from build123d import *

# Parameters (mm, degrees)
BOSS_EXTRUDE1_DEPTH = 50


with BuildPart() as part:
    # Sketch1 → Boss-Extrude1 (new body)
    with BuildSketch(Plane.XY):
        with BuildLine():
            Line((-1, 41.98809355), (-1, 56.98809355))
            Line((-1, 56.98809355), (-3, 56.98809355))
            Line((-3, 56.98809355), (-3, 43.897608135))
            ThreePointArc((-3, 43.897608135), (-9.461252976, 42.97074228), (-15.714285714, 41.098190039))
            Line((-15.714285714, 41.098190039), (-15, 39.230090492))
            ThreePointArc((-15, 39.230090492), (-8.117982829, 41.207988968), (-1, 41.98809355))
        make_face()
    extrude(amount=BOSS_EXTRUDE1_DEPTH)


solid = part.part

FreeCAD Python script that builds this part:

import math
import FreeCAD as App
import Part
import Sketcher

V = App.Vector
Q = App.Units.Quantity

doc = App.newDocument("Part")
params = doc.addObject("Spreadsheet::Sheet", "Params")
for row, (alias, value) in enumerate([
    ("sketch1_radius", "44 mm"),
    ("sketch1_radius2", "42 mm"),
    ("sketch1_width", "2 mm"),
    ("sketch1_height", "15 mm"),
    ("pad1_length", "50 mm"),
], start=1):
    params.set(f"A{row}", alias)
    params.set(f"B{row}", "=" + value)
    params.setAlias(f"B{row}", alias)

body = doc.addObject("PartDesign::Body", "Body")

sketch1 = body.newObject("Sketcher::SketchObject", "Sketch")
sketch1.AttachmentSupport = (doc.getObject("XY_Plane"), [""])
sketch1.MapMode = "FlatFace"
sketch1.addGeometry([
    Part.LineSegment(V(-1, 41.988094, 0), V(-1, 56.988094, 0)),
    Part.LineSegment(V(-1, 56.988094, 0), V(-3, 56.988094, 0)),
    Part.LineSegment(V(-3, 56.988094, 0), V(-3, 43.897608, 0)),
    Part.ArcOfCircle(Part.Circle(V(0, 0, 0), V(0, 0, 1), 44), math.radians(93.909564), math.radians(110.924832)),
    Part.LineSegment(V(-15.714286, 41.09819, 0), V(-15, 39.23009, 0)),
    Part.ArcOfCircle(Part.Circle(V(0, 0, 0), V(0, 0, 1), 42), math.radians(91.364314), math.radians(110.924832)),
], False)
sketch1.addConstraint([
    Sketcher.Constraint("Coincident", 0, 2, 1, 1),
    Sketcher.Constraint("Coincident", 1, 2, 2, 1),
    Sketcher.Constraint("Coincident", 2, 2, 3, 1),
    Sketcher.Constraint("Coincident", 3, 2, 4, 1),
    Sketcher.Constraint("Coincident", 4, 2, 5, 2),
    Sketcher.Constraint("Coincident", 5, 1, 0, 1),
    Sketcher.Constraint("Vertical", 0),
    Sketcher.Constraint("Horizontal", 1),
    Sketcher.Constraint("Vertical", 2),
    Sketcher.Constraint("Coincident", 3, 3, -1, 1),
    Sketcher.Constraint("Coincident", 5, 3, -1, 1),
    Sketcher.Constraint("Radius", 3, Q("44 mm")),
    Sketcher.Constraint("Radius", 5, Q("42 mm")),
    Sketcher.Constraint("DistanceX", 1, 2, 1, 1, Q("2 mm")),
    Sketcher.Constraint("DistanceY", 0, 1, 0, 2, Q("15 mm")),
    Sketcher.Constraint("DistanceX", 0, 2, -1, 1, Q("1 mm")),
    Sketcher.Constraint("DistanceX", 4, 2, -1, 1, Q("15 mm")),
    Sketcher.Constraint("DistanceY", 4, 2, 3, 2, Q("1.8681 mm")),
])
sketch1.setExpression("Constraints[11]", "Params.sketch1_radius")
sketch1.setExpression("Constraints[12]", "Params.sketch1_radius2")
sketch1.setExpression("Constraints[13]", "Params.sketch1_width")
sketch1.setExpression("Constraints[14]", "Params.sketch1_height")
pad1 = body.newObject("PartDesign::Pad", "Pad")
pad1.Profile = sketch1
pad1.setExpression("Length", "Params.pad1_length")

doc.recompute()
